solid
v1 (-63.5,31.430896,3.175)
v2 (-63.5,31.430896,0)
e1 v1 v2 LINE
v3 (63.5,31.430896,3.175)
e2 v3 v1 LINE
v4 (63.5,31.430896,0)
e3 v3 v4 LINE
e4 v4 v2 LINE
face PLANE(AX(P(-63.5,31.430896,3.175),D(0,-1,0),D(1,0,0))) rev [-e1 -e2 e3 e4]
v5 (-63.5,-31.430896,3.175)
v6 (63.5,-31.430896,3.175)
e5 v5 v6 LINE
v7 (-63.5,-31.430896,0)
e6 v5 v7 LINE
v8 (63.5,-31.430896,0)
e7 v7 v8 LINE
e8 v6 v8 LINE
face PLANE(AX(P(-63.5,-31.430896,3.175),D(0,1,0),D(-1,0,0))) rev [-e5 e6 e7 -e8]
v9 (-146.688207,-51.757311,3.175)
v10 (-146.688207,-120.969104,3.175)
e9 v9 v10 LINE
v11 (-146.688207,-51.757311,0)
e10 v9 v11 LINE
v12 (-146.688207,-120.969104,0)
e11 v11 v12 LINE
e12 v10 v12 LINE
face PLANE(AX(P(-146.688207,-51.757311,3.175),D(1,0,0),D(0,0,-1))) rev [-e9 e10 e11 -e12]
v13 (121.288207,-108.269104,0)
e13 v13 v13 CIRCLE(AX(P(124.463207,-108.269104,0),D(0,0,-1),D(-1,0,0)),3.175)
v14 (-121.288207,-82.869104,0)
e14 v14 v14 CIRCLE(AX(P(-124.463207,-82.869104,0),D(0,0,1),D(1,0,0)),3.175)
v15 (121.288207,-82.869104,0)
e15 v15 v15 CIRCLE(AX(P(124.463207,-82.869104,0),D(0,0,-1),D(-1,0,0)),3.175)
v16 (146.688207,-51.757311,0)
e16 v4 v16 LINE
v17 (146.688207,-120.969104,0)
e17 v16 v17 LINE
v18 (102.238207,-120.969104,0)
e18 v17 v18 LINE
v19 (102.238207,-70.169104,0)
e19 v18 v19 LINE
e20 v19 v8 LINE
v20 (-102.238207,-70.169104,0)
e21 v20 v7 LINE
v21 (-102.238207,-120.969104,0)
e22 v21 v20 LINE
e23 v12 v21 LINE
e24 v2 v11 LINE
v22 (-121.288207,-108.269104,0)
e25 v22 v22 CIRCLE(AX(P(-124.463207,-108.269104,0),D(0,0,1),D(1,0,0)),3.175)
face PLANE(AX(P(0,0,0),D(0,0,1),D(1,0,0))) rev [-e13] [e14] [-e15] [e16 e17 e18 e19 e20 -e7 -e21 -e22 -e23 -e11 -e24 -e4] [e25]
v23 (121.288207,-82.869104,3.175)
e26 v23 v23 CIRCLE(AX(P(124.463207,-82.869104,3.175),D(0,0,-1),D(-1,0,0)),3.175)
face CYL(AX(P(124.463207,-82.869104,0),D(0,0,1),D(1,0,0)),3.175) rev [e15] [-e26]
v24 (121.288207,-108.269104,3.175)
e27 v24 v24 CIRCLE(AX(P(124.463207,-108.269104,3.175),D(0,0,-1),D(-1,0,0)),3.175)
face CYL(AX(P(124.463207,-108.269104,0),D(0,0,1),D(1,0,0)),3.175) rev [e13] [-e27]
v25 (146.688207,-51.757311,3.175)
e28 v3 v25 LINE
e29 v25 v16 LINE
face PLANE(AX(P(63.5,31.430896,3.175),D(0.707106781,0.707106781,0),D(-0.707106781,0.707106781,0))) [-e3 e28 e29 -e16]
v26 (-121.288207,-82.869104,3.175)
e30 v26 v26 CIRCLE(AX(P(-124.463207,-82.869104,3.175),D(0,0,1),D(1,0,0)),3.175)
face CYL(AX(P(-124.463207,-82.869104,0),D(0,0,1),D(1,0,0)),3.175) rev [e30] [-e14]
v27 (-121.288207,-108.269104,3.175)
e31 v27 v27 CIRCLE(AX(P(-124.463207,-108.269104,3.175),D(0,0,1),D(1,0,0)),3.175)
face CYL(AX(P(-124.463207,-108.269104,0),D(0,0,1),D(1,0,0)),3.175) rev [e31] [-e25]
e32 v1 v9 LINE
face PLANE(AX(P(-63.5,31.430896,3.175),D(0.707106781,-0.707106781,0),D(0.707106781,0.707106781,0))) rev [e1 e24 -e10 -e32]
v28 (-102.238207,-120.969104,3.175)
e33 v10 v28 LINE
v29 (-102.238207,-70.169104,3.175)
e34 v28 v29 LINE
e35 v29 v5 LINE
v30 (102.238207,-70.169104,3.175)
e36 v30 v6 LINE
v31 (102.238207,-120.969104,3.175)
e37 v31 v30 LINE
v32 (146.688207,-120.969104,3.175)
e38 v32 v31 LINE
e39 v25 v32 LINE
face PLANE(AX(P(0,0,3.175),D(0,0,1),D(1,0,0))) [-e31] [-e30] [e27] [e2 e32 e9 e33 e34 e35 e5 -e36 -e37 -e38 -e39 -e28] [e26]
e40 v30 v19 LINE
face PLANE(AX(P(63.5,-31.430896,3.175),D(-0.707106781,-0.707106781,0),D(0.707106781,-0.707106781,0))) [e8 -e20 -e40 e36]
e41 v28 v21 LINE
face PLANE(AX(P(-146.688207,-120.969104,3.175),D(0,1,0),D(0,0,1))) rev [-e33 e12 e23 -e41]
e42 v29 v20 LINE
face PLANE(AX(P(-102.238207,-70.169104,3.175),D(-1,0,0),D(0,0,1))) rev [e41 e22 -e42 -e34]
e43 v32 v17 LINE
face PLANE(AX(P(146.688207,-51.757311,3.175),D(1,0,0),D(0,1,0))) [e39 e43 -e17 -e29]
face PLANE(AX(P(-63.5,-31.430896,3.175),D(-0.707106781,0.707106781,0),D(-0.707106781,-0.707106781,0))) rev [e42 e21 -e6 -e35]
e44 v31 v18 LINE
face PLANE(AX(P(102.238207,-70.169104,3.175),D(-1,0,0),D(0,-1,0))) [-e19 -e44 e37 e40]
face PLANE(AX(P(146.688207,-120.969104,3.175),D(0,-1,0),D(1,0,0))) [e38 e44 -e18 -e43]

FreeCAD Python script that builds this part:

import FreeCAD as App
import Part
import Sketcher
Q = App.Units.Quantity


def add_polygon(sketch, points):
    """Adds a closed chain of lines whose ends are joined by coincident constraints."""
    first, n = sketch.GeometryCount, len(points)
    for a, b in zip(points, points[1:] + points[:1]):
        sketch.addGeometry(Part.LineSegment(App.Vector(*a, 0), App.Vector(*b, 0)), False)
    for i in range(n):
        sketch.addConstraint(Sketcher.Constraint("Coincident", first + i, 2, first + (i + 1) % n, 1))

doc = App.newDocument("Part")
body = doc.addObject("PartDesign::Body", "Body")

sketch1 = body.newObject("Sketcher::SketchObject", "Sketch")
sketch1.AttachmentSupport = (doc.getObject("XY_Plane"), [""])
sketch1.MapMode = "FlatFace"
add_polygon(sketch1, [(-64, 31), (-147, -52), (-147, -121), (-102, -121), (-102, -70), (-64, -31), (0, -31), (0, 31)])
sketch1.addConstraint(Sketcher.Constraint("Vertical", 1))
sketch1.addConstraint(Sketcher.Constraint("Horizontal", 2))
sketch1.addConstraint(Sketcher.Constraint("Vertical", 3))
sketch1.addConstraint(Sketcher.Constraint("Horizontal", 5))
sketch1.addConstraint(Sketcher.Constraint("Vertical", 6))
sketch1.addConstraint(Sketcher.Constraint("Horizontal", 7))
sketch1.addConstraint(Sketcher.Constraint("Symmetric", 5, 2, 6, 2, -1, 1))
sketch1.addConstraint(Sketcher.Constraint("Parallel", 0, 4))
sketch1.addConstraint(Sketcher.Constraint("Vertical", 4, 2, 7, 2))
sketch1.addConstraint(Sketcher.Constraint("DistanceY", 3, 1, 3, 2, Q("2 in")))
sketch1.addConstraint(Sketcher.Constraint("DistanceX", 5, 1, 5, 2, Q("2.5 in")))
sketch1.addConstraint(Sketcher.Constraint("Angle", 0, Q("-135 deg")))
sketch1.addConstraint(Sketcher.Constraint("DistanceY", 3, 2, 6, 2, Q("4 in")))
sketch1.addConstraint(Sketcher.Constraint("DistanceX", 2, 1, 2, 2, Q("1.75 in")))
sketch1.addConstraint(Sketcher.Constraint("Distance", 0, 117.645891))
pad1 = body.newObject("PartDesign::Pad", "Pad")
pad1.Profile = sketch1
pad1.Length = Q("0.125 in")

sketch2 = body.newObject("Sketcher::SketchObject", "Sketch001")
sketch2.AttachmentSupport = (doc.getObject("XY_Plane"), [""])
sketch2.MapMode = "FlatFace"
sketch2.AttachmentOffset = App.Placement(App.Vector(0, 0, 0.125 * 25.4), App.Rotation())
sketch2.addGeometry(Part.Circle(App.Vector(-124.5, -108.3, 0), App.Vector(0, 0, 1), 3.2), False)
sketch2.addGeometry(Part.Circle(App.Vector(-124.5, -82.9, 0), App.Vector(0, 0, 1), 3.2), False)
sketch2.addConstraint(Sketcher.Constraint("Equal", 0, 1))
sketch2.addConstraint(Sketcher.Constraint("Vertical", 0, 3, 1, 3))
sketch2.addConstraint(Sketcher.Constraint("Diameter", 0, Q("0.25 in")))
sketch2.addConstraint(Sketcher.Constraint("DistanceY", 0, 3, 1, 3, Q("1 in")))
sketch2.addConstraint(Sketcher.Constraint("DistanceX", 0, 3, -1, 1, 124.463207))
sketch2.addConstraint(Sketcher.Constraint("DistanceY", 0, 3, -1, 1, 108.269104))
pocket1 = body.newObject("PartDesign::Pocket", "Pocket")
pocket1.Profile = sketch2
pocket1.Length = Q("0.125 in")
doc.recompute()

mirrored = body.newObject("PartDesign::Mirrored", "Mirrored")
mirrored.Originals = [pad1, pocket1]
mirrored.MirrorPlane = (doc.getObject("YZ_Plane"), [""])
body.Tip = mirrored

doc.recompute()
